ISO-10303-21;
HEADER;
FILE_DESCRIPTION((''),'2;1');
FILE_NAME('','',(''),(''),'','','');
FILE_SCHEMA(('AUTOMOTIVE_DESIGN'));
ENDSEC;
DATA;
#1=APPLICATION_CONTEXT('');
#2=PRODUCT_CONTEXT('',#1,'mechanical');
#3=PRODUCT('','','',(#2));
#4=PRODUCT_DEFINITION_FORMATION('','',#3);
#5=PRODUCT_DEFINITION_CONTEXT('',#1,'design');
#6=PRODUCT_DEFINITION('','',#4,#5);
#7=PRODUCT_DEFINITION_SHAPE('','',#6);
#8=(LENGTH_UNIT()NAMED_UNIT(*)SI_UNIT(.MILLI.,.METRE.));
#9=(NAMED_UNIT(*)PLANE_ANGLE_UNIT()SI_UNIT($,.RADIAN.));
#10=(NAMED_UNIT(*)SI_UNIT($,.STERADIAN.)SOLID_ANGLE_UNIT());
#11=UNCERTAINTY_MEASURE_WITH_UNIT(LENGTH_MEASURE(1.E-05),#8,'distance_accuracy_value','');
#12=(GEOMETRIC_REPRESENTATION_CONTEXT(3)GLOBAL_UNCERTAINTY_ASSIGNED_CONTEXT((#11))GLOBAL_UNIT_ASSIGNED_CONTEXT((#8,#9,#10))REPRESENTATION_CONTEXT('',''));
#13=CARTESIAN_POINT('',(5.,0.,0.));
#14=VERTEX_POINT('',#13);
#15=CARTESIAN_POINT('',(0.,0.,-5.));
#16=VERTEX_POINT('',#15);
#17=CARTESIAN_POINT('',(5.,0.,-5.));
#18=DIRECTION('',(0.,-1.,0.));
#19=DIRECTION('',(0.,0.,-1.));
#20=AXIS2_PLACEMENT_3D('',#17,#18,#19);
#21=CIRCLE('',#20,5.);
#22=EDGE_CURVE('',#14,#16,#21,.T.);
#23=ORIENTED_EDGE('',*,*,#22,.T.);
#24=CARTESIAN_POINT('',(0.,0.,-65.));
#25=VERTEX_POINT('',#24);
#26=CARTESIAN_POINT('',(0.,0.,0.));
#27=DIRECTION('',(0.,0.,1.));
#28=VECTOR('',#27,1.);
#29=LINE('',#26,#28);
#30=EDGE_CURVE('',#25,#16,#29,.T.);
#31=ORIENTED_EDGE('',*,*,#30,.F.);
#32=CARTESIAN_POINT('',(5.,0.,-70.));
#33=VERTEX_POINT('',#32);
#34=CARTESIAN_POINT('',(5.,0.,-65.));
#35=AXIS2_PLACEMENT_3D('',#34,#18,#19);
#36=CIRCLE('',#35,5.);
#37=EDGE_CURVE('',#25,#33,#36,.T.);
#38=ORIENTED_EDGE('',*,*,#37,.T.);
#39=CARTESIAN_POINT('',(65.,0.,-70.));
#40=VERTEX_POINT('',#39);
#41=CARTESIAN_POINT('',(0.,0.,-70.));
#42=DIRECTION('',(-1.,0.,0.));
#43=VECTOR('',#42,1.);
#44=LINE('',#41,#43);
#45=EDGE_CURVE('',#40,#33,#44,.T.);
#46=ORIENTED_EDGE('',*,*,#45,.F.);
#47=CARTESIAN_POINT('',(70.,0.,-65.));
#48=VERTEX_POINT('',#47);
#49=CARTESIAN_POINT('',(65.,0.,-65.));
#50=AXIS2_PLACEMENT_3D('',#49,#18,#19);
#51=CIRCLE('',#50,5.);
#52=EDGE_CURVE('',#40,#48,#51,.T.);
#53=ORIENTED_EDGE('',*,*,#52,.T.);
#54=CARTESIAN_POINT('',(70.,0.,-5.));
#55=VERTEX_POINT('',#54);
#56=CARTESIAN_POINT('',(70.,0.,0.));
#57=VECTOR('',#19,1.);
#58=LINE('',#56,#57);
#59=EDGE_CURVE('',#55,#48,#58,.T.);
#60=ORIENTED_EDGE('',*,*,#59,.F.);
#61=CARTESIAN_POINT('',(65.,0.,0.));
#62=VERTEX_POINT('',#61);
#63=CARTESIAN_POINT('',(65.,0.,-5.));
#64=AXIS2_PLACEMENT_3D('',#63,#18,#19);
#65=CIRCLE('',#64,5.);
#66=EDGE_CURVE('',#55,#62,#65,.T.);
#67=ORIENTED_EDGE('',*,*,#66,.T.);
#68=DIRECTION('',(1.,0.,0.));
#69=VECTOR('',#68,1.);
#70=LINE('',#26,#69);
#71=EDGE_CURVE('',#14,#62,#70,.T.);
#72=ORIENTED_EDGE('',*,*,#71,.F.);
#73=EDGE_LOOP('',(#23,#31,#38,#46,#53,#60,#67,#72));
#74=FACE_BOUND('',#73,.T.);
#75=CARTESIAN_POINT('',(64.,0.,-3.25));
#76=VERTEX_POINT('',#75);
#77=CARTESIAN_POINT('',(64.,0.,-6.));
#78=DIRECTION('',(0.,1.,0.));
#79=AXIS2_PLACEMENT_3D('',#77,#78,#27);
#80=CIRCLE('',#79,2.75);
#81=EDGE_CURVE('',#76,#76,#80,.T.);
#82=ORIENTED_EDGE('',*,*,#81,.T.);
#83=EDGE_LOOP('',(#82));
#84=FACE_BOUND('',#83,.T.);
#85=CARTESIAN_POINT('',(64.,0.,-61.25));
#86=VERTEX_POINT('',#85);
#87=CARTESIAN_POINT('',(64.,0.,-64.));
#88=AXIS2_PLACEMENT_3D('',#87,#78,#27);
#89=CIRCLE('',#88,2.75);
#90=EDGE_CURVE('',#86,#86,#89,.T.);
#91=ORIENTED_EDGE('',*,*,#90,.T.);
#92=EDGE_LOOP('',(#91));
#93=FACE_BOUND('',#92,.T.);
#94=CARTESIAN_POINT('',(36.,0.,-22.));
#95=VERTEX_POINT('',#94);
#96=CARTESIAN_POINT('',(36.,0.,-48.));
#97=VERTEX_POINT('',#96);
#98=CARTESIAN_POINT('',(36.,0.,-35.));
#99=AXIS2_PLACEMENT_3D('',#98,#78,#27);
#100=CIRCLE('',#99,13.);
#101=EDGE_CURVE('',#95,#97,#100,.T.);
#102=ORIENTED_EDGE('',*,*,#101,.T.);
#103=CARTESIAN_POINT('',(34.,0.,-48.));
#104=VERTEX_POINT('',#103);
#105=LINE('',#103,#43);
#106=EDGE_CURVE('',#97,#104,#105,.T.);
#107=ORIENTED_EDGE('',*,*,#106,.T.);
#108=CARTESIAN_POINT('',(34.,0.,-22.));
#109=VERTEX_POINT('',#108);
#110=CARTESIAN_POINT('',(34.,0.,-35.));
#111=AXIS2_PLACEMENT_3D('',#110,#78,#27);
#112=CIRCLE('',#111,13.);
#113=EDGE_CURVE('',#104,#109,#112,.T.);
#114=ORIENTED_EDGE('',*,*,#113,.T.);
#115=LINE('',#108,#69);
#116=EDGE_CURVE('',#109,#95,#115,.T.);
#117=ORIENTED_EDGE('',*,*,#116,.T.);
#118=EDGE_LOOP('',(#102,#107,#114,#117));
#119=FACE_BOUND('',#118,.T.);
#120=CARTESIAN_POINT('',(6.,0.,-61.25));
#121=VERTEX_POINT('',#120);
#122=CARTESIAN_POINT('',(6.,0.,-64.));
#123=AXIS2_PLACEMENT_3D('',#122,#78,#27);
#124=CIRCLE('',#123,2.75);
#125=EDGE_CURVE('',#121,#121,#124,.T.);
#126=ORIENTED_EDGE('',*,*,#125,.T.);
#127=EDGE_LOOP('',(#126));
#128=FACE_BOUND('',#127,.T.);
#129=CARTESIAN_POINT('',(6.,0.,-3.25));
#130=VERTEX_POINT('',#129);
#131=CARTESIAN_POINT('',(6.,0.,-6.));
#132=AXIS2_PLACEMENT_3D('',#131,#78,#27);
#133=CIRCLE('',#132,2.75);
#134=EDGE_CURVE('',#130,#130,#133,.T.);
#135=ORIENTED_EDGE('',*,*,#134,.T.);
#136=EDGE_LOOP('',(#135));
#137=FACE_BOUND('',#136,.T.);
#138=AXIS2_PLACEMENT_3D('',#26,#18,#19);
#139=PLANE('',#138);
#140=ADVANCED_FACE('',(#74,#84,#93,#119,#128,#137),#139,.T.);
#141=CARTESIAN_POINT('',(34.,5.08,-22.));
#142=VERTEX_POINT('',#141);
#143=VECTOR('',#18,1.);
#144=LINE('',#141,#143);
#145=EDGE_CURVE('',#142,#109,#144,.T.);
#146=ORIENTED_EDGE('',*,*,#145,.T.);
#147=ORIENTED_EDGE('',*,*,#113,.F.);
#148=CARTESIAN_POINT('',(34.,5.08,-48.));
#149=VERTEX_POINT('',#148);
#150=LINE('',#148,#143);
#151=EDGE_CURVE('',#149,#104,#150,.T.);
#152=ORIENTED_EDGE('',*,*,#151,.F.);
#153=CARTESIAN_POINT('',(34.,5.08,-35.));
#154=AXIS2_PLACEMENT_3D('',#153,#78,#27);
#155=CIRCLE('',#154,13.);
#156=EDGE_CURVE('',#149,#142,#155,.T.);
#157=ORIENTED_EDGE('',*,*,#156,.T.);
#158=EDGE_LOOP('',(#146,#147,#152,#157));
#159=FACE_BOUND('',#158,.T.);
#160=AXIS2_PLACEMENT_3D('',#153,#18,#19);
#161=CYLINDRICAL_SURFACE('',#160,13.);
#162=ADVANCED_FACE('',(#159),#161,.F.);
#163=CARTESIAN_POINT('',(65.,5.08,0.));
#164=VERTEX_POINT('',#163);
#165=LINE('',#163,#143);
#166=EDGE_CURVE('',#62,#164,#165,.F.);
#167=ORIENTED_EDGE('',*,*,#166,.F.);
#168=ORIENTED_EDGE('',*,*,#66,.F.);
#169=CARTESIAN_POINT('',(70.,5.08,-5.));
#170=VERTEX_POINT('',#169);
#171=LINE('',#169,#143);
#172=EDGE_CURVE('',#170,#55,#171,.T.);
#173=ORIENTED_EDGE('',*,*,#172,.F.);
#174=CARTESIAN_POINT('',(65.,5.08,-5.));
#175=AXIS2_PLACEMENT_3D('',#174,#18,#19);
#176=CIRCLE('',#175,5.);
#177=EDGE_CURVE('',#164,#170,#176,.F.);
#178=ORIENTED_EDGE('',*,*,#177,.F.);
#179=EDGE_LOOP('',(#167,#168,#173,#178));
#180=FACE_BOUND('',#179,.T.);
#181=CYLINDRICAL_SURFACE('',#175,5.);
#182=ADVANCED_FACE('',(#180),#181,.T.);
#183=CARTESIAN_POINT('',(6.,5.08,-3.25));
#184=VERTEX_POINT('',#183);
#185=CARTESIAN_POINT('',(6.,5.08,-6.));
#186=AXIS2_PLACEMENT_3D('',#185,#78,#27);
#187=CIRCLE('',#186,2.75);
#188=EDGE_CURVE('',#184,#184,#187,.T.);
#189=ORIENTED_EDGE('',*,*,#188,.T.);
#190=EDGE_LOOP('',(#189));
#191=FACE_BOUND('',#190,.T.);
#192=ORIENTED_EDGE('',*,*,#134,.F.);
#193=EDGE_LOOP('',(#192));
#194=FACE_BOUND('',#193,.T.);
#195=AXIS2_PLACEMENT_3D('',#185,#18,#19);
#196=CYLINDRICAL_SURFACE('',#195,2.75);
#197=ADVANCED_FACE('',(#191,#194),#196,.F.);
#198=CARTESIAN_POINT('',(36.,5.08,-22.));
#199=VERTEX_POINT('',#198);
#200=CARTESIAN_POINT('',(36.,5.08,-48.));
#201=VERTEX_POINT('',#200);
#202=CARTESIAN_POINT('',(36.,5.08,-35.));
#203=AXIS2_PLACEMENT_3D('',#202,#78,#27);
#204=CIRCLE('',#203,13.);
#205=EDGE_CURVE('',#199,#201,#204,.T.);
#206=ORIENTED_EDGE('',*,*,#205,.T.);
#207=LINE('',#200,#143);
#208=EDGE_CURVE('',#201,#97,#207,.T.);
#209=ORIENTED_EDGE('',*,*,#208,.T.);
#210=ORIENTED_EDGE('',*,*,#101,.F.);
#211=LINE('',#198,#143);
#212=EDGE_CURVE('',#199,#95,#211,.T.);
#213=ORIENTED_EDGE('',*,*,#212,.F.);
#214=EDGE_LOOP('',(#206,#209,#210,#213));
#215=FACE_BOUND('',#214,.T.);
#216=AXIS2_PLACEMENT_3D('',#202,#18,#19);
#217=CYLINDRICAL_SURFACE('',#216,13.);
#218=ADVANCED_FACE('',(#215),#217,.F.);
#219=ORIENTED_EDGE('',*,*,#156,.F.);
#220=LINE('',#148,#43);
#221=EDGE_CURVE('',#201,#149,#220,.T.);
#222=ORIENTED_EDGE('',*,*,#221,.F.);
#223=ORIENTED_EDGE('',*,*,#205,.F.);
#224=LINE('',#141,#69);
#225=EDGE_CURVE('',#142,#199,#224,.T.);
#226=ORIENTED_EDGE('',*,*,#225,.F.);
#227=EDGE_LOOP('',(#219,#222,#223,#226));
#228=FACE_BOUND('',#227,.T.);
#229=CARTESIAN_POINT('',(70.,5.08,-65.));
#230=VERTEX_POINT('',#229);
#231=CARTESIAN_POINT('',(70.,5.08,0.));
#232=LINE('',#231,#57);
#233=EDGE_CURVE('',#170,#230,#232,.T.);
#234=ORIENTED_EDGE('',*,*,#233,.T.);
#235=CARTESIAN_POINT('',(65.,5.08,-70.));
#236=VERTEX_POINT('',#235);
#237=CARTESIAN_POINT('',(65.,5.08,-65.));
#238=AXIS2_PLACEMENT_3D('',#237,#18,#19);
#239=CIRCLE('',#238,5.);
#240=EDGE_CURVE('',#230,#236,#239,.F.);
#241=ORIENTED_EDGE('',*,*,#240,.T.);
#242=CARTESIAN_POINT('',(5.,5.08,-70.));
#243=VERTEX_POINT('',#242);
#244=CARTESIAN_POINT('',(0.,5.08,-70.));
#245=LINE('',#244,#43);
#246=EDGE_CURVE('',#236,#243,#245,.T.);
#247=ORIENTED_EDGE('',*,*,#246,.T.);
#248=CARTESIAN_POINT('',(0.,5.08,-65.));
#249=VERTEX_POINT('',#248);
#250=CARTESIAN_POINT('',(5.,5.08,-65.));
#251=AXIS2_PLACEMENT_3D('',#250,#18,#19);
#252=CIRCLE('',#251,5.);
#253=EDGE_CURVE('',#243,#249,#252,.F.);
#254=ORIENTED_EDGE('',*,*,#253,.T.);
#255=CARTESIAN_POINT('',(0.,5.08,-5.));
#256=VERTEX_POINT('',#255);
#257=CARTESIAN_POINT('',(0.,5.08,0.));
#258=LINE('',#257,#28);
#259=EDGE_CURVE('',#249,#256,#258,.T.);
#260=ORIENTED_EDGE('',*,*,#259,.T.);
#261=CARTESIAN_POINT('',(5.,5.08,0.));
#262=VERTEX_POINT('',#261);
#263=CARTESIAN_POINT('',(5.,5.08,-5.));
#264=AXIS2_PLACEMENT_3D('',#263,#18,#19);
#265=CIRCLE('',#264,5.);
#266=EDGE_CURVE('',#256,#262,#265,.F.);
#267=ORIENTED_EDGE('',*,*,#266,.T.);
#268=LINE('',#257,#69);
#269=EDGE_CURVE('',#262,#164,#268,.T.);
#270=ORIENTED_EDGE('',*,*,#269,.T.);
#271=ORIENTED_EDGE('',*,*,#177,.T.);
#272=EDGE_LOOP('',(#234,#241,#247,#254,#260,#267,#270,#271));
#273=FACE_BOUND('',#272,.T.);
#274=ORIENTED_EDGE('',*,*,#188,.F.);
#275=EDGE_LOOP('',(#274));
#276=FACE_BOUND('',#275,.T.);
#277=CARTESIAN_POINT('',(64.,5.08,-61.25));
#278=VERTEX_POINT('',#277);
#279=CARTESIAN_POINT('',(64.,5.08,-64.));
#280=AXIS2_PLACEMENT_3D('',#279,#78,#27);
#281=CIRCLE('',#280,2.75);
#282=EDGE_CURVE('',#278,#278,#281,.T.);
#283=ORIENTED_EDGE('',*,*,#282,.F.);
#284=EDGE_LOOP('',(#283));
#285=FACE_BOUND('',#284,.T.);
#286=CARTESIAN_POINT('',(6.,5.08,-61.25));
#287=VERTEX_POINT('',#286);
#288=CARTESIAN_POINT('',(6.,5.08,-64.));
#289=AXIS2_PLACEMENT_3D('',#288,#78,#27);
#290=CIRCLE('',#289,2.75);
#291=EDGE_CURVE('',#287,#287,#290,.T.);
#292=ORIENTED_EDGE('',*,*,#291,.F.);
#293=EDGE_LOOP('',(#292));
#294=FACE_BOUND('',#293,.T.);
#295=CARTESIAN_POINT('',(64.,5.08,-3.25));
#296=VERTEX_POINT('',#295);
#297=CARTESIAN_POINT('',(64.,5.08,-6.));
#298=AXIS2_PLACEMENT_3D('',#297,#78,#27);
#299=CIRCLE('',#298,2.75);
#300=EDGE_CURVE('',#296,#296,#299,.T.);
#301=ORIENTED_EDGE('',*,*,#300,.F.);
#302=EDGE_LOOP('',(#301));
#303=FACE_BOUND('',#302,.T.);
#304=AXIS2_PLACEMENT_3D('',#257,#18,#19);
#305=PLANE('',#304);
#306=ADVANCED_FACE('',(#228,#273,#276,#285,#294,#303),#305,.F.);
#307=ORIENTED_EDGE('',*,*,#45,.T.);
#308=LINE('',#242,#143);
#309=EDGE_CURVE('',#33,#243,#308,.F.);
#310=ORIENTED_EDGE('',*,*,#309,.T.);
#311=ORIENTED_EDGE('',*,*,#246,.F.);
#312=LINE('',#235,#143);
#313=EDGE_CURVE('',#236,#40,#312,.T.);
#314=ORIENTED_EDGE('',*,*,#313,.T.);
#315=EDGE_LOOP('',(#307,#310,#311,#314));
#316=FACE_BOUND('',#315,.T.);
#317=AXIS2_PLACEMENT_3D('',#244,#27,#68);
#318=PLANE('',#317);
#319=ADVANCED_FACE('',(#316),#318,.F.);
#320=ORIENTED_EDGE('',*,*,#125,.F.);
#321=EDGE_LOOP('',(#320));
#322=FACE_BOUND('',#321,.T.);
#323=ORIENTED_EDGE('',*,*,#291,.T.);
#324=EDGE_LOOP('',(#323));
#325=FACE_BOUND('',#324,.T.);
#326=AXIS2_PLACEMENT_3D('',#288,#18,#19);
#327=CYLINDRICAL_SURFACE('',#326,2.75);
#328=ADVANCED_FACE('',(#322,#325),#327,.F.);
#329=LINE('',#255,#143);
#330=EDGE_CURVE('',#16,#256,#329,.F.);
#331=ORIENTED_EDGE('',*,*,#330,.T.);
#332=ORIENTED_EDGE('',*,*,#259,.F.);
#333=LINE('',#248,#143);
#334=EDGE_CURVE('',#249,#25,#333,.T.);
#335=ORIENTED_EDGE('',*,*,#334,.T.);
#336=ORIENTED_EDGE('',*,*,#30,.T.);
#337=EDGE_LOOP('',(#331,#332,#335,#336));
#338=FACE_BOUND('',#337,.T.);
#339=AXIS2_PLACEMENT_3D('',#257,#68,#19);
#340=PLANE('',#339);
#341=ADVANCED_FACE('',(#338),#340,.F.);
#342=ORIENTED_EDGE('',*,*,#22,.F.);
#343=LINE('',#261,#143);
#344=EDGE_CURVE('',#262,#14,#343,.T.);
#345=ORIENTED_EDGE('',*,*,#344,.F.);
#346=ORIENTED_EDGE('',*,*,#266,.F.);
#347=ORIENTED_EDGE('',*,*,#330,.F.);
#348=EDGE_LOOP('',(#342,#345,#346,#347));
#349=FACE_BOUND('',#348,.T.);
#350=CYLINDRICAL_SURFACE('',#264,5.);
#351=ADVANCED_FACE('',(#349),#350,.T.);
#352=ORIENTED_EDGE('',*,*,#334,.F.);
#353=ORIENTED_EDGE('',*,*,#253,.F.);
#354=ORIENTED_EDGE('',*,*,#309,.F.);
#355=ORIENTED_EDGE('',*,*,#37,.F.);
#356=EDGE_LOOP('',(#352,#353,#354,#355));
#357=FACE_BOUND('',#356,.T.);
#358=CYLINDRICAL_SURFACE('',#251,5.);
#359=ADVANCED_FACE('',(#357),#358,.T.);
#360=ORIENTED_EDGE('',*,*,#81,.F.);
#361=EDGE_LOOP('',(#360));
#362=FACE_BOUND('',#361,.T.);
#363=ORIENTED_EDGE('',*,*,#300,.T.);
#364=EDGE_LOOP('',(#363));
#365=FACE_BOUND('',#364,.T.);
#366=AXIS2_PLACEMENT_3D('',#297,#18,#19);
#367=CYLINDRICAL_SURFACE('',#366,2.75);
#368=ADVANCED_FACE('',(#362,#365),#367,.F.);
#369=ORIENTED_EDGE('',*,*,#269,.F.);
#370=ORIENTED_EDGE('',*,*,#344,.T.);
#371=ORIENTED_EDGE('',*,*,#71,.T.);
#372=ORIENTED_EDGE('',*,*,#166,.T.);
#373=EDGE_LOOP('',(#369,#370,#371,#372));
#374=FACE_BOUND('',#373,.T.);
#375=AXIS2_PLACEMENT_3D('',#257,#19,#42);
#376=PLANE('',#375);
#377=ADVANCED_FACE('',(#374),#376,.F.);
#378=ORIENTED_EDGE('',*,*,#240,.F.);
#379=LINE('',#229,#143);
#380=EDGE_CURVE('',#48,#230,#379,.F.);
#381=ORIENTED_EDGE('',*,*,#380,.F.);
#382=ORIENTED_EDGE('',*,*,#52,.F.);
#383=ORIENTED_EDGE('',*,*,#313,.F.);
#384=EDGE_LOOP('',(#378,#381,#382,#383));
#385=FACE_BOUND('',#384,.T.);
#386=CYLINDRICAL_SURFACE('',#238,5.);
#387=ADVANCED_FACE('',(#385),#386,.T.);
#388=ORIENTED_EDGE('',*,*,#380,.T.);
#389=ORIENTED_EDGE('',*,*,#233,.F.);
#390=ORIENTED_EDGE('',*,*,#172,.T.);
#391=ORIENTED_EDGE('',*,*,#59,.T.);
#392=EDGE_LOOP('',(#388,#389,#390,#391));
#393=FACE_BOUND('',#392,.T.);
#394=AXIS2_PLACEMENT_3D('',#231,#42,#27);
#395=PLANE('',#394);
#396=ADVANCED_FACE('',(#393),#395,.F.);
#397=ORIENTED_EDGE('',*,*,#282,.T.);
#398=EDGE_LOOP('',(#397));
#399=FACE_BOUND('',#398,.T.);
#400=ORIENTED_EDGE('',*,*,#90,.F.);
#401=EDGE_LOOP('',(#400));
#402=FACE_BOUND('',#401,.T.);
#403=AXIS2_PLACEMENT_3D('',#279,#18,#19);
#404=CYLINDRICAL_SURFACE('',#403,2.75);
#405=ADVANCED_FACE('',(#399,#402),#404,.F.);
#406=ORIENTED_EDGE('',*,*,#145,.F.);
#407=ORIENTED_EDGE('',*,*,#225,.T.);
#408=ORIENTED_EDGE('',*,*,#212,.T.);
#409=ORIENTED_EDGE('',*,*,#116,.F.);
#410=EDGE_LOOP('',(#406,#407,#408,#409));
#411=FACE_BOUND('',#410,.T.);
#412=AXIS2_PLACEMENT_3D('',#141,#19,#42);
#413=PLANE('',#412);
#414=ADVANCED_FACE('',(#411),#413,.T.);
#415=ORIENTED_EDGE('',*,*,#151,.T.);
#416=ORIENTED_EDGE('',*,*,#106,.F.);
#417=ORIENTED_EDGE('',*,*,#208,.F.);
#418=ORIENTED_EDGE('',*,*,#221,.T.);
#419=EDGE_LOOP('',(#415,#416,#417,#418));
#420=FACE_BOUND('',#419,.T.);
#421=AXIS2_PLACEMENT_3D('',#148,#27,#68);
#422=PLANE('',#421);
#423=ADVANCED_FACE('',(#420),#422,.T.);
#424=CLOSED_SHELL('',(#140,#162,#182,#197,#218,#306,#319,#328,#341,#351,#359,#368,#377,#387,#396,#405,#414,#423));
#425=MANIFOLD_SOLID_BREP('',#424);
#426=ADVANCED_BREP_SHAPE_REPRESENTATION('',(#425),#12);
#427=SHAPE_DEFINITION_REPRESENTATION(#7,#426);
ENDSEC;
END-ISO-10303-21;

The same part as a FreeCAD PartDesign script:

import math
import FreeCAD as App
import Part
import Sketcher
Q = App.Units.Quantity


def edges_at(feature, points):
    """Names of the edges that pass closest to the given points."""
    edges = feature.Shape.Edges
    near = lambda p: min(range(len(edges)), key=lambda i: edges[i].distToShape(Part.Vertex(*p))[0])
    return sorted({f"Edge{near(p) + 1}" for p in points})


def add_polygon(sketch, points):
    """Adds a closed chain of lines whose ends are joined by coincident constraints."""
    first, n = sketch.GeometryCount, len(points)
    for a, b in zip(points, points[1:] + points[:1]):
        sketch.addGeometry(Part.LineSegment(App.Vector(*a, 0), App.Vector(*b, 0)), False)
    for i in range(n):
        sketch.addConstraint(Sketcher.Constraint("Coincident", first + i, 2, first + (i + 1) % n, 1))

doc = App.newDocument("Part")
body = doc.addObject("PartDesign::Body", "Body")

sketch1 = body.newObject("Sketcher::SketchObject", "Sketch")
sketch1.AttachmentSupport = (doc.getObject("XZ_Plane"), [""])
sketch1.MapMode = "FlatFace"
add_polygon(sketch1, [(0, -70), (0, 0), (70, 0), (70, -70)])
sketch1.addGeometry(Part.Circle(App.Vector(6, -6, 0), App.Vector(0, 0, 1), 2.8), False)
sketch1.addGeometry(Part.Circle(App.Vector(64, -6, 0), App.Vector(0, 0, 1), 2.8), False)
sketch1.addGeometry(Part.Circle(App.Vector(6, -64, 0), App.Vector(0, 0, 1), 2.8), False)
sketch1.addGeometry(Part.ArcOfCircle(Part.Circle(App.Vector(34, -35, 0), App.Vector(0, 0, 1), 13), math.radians(90), math.radians(270)), False)
sketch1.addGeometry(Part.LineSegment(App.Vector(34, -48, 0), App.Vector(36, -48, 0)), False)
sketch1.addGeometry(Part.ArcOfCircle(Part.Circle(App.Vector(36, -35, 0), App.Vector(0, 0, 1), 13), math.radians(-90), math.radians(90)), False)
sketch1.addGeometry(Part.LineSegment(App.Vector(36, -22, 0), App.Vector(34, -22, 0)), False)
sketch1.addGeometry(Part.Circle(App.Vector(64, -64, 0), App.Vector(0, 0, 1), 2.8), False)
sketch1.addConstraint(Sketcher.Constraint("Tangent", 7, 2, 8, 1))
sketch1.addConstraint(Sketcher.Constraint("Tangent", 8, 2, 9, 1))
sketch1.addConstraint(Sketcher.Constraint("Tangent", 9, 2, 10, 1))
sketch1.addConstraint(Sketcher.Constraint("Tangent", 10, 2, 7, 1))
sketch1.addConstraint(Sketcher.Constraint("Vertical", 0))
sketch1.addConstraint(Sketcher.Constraint("Horizontal", 1))
sketch1.addConstraint(Sketcher.Constraint("Vertical", 2))
sketch1.addConstraint(Sketcher.Constraint("Horizontal", 3))
sketch1.addConstraint(Sketcher.Constraint("Horizontal", 8))
sketch1.addConstraint(Sketcher.Constraint("Horizontal", 10))
sketch1.addConstraint(Sketcher.Constraint("Coincident", 0, 2, -1, 1))
sketch1.addConstraint(Sketcher.Constraint("Equal", 4, 5))
sketch1.addConstraint(Sketcher.Constraint("Equal", 5, 6))
sketch1.addConstraint(Sketcher.Constraint("Equal", 6, 11))
sketch1.addConstraint(Sketcher.Constraint("Horizontal", 4, 3, 5, 3))
sketch1.addConstraint(Sketcher.Constraint("Horizontal", 6, 3, 11, 3))
sketch1.addConstraint(Sketcher.Constraint("Vertical", 4, 3, 6, 3))
sketch1.addConstraint(Sketcher.Constraint("Vertical", 5, 3, 11, 3))
sketch1.addConstraint(Sketcher.Constraint("Equal", 3, 0))
sketch1.addConstraint(Sketcher.Constraint("Radius", 7, Q("13 mm")))
sketch1.addConstraint(Sketcher.Constraint("Diameter", 4, Q("5.5 mm")))
sketch1.addConstraint(Sketcher.Constraint("DistanceX", 1, 1, 1, 2, Q("70 mm")))
sketch1.addConstraint(Sketcher.Constraint("DistanceX", 8, 1, 8, 2, Q("2 mm")))
sketch1.addConstraint(Sketcher.Constraint("DistanceX", -1, 1, 4, 3, Q("6 mm")))
sketch1.addConstraint(Sketcher.Constraint("DistanceY", 4, 3, -1, 1, Q("6 mm")))
sketch1.addConstraint(Sketcher.Constraint("DistanceX", -1, 1, 5, 3, Q("64 mm")))
sketch1.addConstraint(Sketcher.Constraint("DistanceY", 6, 3, -1, 1, Q("64 mm")))
sketch1.addConstraint(Sketcher.Constraint("DistanceX", -1, 1, 7, 3, Q("34 mm")))
sketch1.addConstraint(Sketcher.Constraint("DistanceY", 7, 3, -1, 1, Q("35 mm")))
pad1 = body.newObject("PartDesign::Pad", "Pad")
pad1.Profile = sketch1
pad1.Length = 5.08
pad1.Reversed = True
doc.recompute()

fillet = body.newObject("PartDesign::Fillet", "Fillet")
fillet.Base = (pad1, edges_at(pad1, [
    (0, 2.54, -70),
    (70, 2.54, -70),
    (70, 2.54, 0),
    (0, 2.54, 0),
]))
fillet.Radius = 5

doc.recompute()
